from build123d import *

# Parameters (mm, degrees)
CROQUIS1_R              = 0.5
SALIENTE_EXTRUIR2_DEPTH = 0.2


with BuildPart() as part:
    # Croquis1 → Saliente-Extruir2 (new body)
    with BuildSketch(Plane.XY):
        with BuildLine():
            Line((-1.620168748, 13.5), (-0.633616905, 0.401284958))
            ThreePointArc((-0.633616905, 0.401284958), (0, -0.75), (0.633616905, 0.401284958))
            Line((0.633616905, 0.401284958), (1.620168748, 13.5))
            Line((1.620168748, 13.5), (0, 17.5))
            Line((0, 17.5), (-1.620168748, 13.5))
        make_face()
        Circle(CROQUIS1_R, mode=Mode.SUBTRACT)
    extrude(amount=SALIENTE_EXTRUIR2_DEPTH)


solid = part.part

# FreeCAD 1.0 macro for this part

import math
import FreeCAD as App
import Part
import Sketcher
from FreeCAD import Vector
Q = App.Units.Quantity

doc = App.newDocument("Part")
params = doc.addObject("Spreadsheet::Sheet", "Params")
for row, (alias, value) in enumerate([
    ("sketch1_diameter", "1 mm"),
    ("sketch1_radius", "0.75 mm"),
    ("pad1_length", "0.2 mm"),
], start=1):
    params.set(f"A{row}", alias)
    params.set(f"B{row}", "=" + value)
    params.setAlias(f"B{row}", alias)

body = doc.addObject("PartDesign::Body", "Body")

# Sketch on XY plane
sketch1 = body.newObject("Sketcher::SketchObject", "Sketch")
sketch1.AttachmentSupport = (doc.getObject("XY_Plane"), [""])
sketch1.MapMode = "FlatFace"
sketch1.addGeometry(Part.LineSegment(Vector(-1.6, 13.5, 0), Vector(-0.6, 0.4, 0)), False)
sketch1.addGeometry(Part.ArcOfCircle(Part.Circle(Vector(0, 0, 0), Vector(0, 0, 1), 0.8), math.radians(148), math.radians(392)), False)
sketch1.addGeometry(Part.LineSegment(Vector(0.6, 0.4, 0), Vector(1.6, 13.5, 0)), False)
sketch1.addGeometry(Part.LineSegment(Vector(1.6, 13.5, 0), Vector(0, 17.5, 0)), False)
sketch1.addGeometry(Part.LineSegment(Vector(0, 17.5, 0), Vector(-1.6, 13.5, 0)), False)
sketch1.addGeometry(Part.Circle(Vector(0, 0, 0), Vector(0, 0, 1), 0.5), False)
sketch1.addConstraint(Sketcher.Constraint("Coincident", 0, 2, 1, 1))
sketch1.addConstraint(Sketcher.Constraint("Coincident", 1, 2, 2, 1))
sketch1.addConstraint(Sketcher.Constraint("Coincident", 2, 2, 3, 1))
sketch1.addConstraint(Sketcher.Constraint("Coincident", 3, 2, 4, 1))
sketch1.addConstraint(Sketcher.Constraint("Coincident", 4, 2, 0, 1))
sketch1.addConstraint(Sketcher.Constraint("Coincident", 1, 3, -1, 1))
sketch1.addConstraint(Sketcher.Constraint("Coincident", 5, 3, -1, 1))
sketch1.addConstraint(Sketcher.Constraint("Symmetric", 2, 2, 4, 2, -2))
sketch1.addConstraint(Sketcher.Constraint("PointOnObject", 3, 2, -2))
sketch1.addConstraint(Sketcher.Constraint("Horizontal", 0, 2, 1, 2))
sketch1.addConstraint(Sketcher.Constraint("Diameter", 5, Q("1 mm")))
sketch1.addConstraint(Sketcher.Constraint("Radius", 1, Q("0.75 mm")))
sketch1.addConstraint(Sketcher.Constraint("DistanceY", 2, 2, 3, 2, Q("4 mm")))
sketch1.addConstraint(Sketcher.Constraint("DistanceY", -1, 1, 2, 2, Q("13.5 mm")))
sketch1.addConstraint(Sketcher.Constraint("DistanceX", -1, 1, 2, 2, Q("1.620169 mm")))
sketch1.addConstraint(Sketcher.Constraint("DistanceX", 1, 2, 2, 2, Q("0.986552 mm")))
sketch1.setExpression("Constraints[10]", "Params.sketch1_diameter")
sketch1.setExpression("Constraints[11]", "Params.sketch1_radius")
pad1 = body.newObject("PartDesign::Pad", "Pad")
pad1.Profile = sketch1
pad1.setExpression("Length", "Params.pad1_length")

doc.recompute()
